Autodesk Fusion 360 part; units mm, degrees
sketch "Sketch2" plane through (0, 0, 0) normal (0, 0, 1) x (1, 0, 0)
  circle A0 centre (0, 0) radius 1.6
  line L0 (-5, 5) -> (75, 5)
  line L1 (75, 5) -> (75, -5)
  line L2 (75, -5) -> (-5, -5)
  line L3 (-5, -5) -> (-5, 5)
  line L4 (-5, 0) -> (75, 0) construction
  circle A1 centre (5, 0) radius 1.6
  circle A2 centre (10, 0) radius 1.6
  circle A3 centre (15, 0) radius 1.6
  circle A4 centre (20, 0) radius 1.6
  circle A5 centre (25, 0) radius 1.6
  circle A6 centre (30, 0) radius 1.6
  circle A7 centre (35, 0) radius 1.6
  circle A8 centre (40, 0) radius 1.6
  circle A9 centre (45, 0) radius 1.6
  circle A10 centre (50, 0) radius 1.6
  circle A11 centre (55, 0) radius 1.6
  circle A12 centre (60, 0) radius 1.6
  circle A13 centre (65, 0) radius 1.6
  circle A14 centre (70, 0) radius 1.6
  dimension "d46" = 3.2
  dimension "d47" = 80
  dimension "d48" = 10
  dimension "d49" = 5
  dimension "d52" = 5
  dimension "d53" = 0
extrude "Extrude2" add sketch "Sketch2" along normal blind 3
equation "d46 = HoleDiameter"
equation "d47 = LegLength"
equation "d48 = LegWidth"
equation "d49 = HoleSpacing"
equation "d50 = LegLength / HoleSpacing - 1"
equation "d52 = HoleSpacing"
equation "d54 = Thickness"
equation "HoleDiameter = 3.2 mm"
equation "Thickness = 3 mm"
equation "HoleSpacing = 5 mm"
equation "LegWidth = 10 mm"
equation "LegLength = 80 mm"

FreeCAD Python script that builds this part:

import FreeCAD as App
import Part
import Sketcher

V = App.Vector


def add_polygon(sketch, points):
    """Adds a closed chain of lines whose ends are joined by coincident constraints."""
    first, n = sketch.GeometryCount, len(points)
    for a, b in zip(points, points[1:] + points[:1]):
        sketch.addGeometry(Part.LineSegment(App.Vector(*a, 0), App.Vector(*b, 0)), False)
    for i in range(n):
        sketch.addConstraint(Sketcher.Constraint("Coincident", first + i, 2, first + (i + 1) % n, 1))

doc = App.newDocument("Part")
body = doc.addObject("PartDesign::Body", "Body")

# Sketch on XY plane
sketch1 = doc.addObject("Sketcher::SketchObject", "Sketch")
body.addObject(sketch1)
sketch1.AttachmentSupport = (doc.XY_Plane, [""])
sketch1.MapMode = "FlatFace"
add_polygon(sketch1, [(75, 5), (-5, 5), (-5, -5), (75, -5)])  # lines 0-3
sketch1.addGeometry(Part.Circle(V(0, 0, 0), V(0, 0, 1), 1.6), False)  # 4
sketch1.addGeometry(Part.Circle(V(5, 0, 0), V(0, 0, 1), 1.6), False)  # 5
sketch1.addGeometry(Part.Circle(V(10, 0, 0), V(0, 0, 1), 1.6), False)  # 6
sketch1.addGeometry(Part.Circle(V(15, 0, 0), V(0, 0, 1), 1.6), False)  # 7
sketch1.addGeometry(Part.Circle(V(20, 0, 0), V(0, 0, 1), 1.6), False)  # 8
sketch1.addGeometry(Part.Circle(V(25, 0, 0), V(0, 0, 1), 1.6), False)  # 9
sketch1.addGeometry(Part.Circle(V(30, 0, 0), V(0, 0, 1), 1.6), False)  # 10
sketch1.addGeometry(Part.Circle(V(35, 0, 0), V(0, 0, 1), 1.6), False)  # 11
sketch1.addGeometry(Part.Circle(V(40, 0, 0), V(0, 0, 1), 1.6), False)  # 12
sketch1.addGeometry(Part.Circle(V(45, 0, 0), V(0, 0, 1), 1.6), False)  # 13
sketch1.addGeometry(Part.Circle(V(50, 0, 0), V(0, 0, 1), 1.6), False)  # 14
sketch1.addGeometry(Part.Circle(V(55, 0, 0), V(0, 0, 1), 1.6), False)  # 15
sketch1.addGeometry(Part.Circle(V(60, 0, 0), V(0, 0, 1), 1.6), False)  # 16
sketch1.addGeometry(Part.Circle(V(65, 0, 0), V(0, 0, 1), 1.6), False)  # 17
sketch1.addGeometry(Part.Circle(V(70, 0, 0), V(0, 0, 1), 1.6), False)  # 18
sketch1.addConstraint([
    Sketcher.Constraint("Horizontal", 0),
    Sketcher.Constraint("Vertical", 1),
    Sketcher.Constraint("Horizontal", 2),
    Sketcher.Constraint("Vertical", 3),
    Sketcher.Constraint("Coincident", 4, 3, -1, 1),
    Sketcher.Constraint("Equal", 4, 5),
    Sketcher.Constraint("Equal", 5, 6),
    Sketcher.Constraint("Equal", 6, 7),
    Sketcher.Constraint("Equal", 7, 8),
    Sketcher.Constraint("Equal", 8, 9),
    Sketcher.Constraint("Equal", 9, 10),
    Sketcher.Constraint("Equal", 10, 11),
    Sketcher.Constraint("Equal", 11, 12),
    Sketcher.Constraint("Equal", 12, 13),
    Sketcher.Constraint("Equal", 13, 14),
    Sketcher.Constraint("Equal", 14, 15),
    Sketcher.Constraint("Equal", 15, 16),
    Sketcher.Constraint("Equal", 16, 17),
    Sketcher.Constraint("Equal", 17, 18),
    Sketcher.Constraint("PointOnObject", 5, 3, -1),
    Sketcher.Constraint("PointOnObject", 6, 3, -1),
    Sketcher.Constraint("PointOnObject", 7, 3, -1),
    Sketcher.Constraint("PointOnObject", 8, 3, -1),
    Sketcher.Constraint("PointOnObject", 9, 3, -1),
    Sketcher.Constraint("PointOnObject", 10, 3, -1),
    Sketcher.Constraint("PointOnObject", 11, 3, -1),
    Sketcher.Constraint("PointOnObject", 12, 3, -1),
    Sketcher.Constraint("PointOnObject", 13, 3, -1),
    Sketcher.Constraint("PointOnObject", 14, 3, -1),
    Sketcher.Constraint("PointOnObject", 15, 3, -1),
    Sketcher.Constraint("PointOnObject", 16, 3, -1),
    Sketcher.Constraint("PointOnObject", 17, 3, -1),
    Sketcher.Constraint("PointOnObject", 18, 3, -1),
    Sketcher.Constraint("Diameter", 4, 3.2),
    Sketcher.Constraint("DistanceX", 0, 2, 0, 1, 80.0),
    Sketcher.Constraint("DistanceY", 1, 2, 1, 1, 10.0),
    Sketcher.Constraint("DistanceX", -1, 1, 5, 3, 5.0),
    Sketcher.Constraint("DistanceX", -1, 1, 6, 3, 10.0),
    Sketcher.Constraint("DistanceX", 0, 2, -1, 1, 5.0),
    Sketcher.Constraint("DistanceY", -1, 1, 0, 2, 5.0),
    Sketcher.Constraint("DistanceX", 6, 3, 7, 3, 5.0),
    Sketcher.Constraint("DistanceX", 7, 3, 8, 3, 5.0),
    Sketcher.Constraint("DistanceX", 8, 3, 9, 3, 5.0),
    Sketcher.Constraint("DistanceX", 9, 3, 10, 3, 5.0),
    Sketcher.Constraint("DistanceX", 10, 3, 11, 3, 5.0),
    Sketcher.Constraint("DistanceX", 11, 3, 12, 3, 5.0),
    Sketcher.Constraint("DistanceX", 12, 3, 13, 3, 5.0),
    Sketcher.Constraint("DistanceX", 13, 3, 14, 3, 5.0),
    Sketcher.Constraint("DistanceX", 14, 3, 15, 3, 5.0),
    Sketcher.Constraint("DistanceX", 15, 3, 16, 3, 5.0),
    Sketcher.Constraint("DistanceX", 16, 3, 17, 3, 5.0),
    Sketcher.Constraint("DistanceX", 17, 3, 18, 3, 5.0),
])
pad1 = doc.addObject("PartDesign::Pad", "Pad")
body.addObject(pad1)
pad1.Profile = sketch1
pad1.Length = 3

doc.recompute()
